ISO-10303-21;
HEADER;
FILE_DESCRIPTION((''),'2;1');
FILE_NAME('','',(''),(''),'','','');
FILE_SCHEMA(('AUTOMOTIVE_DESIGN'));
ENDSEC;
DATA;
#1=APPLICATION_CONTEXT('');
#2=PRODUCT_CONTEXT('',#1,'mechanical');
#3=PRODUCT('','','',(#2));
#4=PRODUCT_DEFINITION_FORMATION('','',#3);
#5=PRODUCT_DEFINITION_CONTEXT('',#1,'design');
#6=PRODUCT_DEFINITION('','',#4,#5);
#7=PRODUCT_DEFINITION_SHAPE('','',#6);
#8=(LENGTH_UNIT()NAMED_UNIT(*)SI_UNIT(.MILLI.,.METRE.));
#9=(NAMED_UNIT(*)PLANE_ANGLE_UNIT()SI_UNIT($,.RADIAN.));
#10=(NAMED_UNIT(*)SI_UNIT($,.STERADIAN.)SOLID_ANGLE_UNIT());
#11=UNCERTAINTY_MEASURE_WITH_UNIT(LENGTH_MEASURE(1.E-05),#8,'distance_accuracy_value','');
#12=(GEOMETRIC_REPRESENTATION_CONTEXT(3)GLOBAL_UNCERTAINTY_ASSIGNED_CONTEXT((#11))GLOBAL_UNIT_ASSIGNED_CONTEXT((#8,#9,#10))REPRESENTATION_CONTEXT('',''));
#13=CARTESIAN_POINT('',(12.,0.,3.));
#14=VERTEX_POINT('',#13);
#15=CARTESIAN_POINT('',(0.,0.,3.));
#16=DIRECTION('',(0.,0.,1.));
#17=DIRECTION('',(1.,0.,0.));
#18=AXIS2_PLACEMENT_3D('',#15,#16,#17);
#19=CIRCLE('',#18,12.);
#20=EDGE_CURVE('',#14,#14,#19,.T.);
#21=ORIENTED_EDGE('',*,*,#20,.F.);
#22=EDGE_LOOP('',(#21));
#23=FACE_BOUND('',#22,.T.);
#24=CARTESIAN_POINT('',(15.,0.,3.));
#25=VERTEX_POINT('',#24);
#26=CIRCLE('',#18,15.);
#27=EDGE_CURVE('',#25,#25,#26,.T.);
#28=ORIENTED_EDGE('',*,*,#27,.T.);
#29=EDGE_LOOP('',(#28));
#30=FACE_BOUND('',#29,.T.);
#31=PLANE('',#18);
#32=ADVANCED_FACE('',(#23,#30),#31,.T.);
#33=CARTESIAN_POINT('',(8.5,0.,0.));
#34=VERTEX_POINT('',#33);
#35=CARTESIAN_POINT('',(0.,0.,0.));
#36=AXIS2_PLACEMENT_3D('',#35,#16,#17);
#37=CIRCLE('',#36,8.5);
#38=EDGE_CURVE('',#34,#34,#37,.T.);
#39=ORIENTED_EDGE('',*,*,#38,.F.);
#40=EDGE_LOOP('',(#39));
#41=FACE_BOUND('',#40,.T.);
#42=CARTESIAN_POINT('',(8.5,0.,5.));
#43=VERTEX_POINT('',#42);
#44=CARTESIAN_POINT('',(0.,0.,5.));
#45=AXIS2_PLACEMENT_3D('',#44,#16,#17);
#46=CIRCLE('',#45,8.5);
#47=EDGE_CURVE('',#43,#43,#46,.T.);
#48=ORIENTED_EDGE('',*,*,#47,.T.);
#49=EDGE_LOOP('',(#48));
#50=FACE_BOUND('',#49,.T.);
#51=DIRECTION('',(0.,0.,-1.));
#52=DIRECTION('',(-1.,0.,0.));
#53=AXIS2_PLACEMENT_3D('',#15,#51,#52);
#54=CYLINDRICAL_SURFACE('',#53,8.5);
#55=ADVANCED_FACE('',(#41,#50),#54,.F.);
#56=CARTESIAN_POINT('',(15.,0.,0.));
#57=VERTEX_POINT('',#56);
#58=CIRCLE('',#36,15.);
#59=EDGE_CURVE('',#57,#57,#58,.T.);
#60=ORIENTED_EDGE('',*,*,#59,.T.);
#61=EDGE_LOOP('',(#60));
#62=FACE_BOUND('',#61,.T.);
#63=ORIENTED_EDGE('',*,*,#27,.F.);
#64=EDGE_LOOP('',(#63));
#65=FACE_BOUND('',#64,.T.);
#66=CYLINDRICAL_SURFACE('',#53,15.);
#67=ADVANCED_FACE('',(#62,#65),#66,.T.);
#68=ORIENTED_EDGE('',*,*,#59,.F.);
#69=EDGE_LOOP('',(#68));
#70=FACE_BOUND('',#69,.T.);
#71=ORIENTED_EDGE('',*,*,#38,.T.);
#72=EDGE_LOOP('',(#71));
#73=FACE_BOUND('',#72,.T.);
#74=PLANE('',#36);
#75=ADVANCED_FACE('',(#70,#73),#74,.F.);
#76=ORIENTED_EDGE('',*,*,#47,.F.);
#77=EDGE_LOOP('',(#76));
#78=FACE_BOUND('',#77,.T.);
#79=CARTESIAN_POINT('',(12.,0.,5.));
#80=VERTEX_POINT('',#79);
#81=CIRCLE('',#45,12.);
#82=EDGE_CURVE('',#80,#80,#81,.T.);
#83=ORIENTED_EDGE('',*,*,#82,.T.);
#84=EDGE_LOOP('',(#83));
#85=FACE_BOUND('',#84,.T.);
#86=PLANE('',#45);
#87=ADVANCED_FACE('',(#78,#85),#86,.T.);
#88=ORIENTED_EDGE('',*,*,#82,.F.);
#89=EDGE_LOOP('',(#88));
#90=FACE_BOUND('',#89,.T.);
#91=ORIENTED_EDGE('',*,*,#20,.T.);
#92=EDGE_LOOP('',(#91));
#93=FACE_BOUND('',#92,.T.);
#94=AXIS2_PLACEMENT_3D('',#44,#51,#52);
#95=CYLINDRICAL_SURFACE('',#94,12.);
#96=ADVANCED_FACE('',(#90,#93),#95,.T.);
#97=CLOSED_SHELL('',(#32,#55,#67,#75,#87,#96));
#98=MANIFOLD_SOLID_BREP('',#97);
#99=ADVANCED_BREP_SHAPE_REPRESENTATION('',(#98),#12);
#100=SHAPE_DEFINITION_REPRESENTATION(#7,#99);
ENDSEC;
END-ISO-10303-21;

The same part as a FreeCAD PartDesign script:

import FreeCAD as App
import Part
import Sketcher

V = App.Vector
Q = App.Units.Quantity

doc = App.newDocument("Part")
body = doc.addObject("PartDesign::Body", "Body")

sketch1 = doc.addObject("Sketcher::SketchObject", "Sketch")
body.addObject(sketch1)
sketch1.AttachmentSupport = (doc.XY_Plane, [""])
sketch1.MapMode = "FlatFace"
sketch1.addGeometry(Part.Circle(V(0, 0, 0), V(0, 0, 1), 15), False)
sketch1.addGeometry(Part.Circle(V(0, 0, 0), V(0, 0, 1), 8.5), False)
sketch1.addConstraint(Sketcher.Constraint("Coincident", 0, 3, -1, 1))
sketch1.addConstraint(Sketcher.Constraint("Coincident", 1, 3, -1, 1))
sketch1.addConstraint(Sketcher.Constraint("Diameter", 0, Q("30 mm")))
sketch1.addConstraint(Sketcher.Constraint("Diameter", 1, Q("17 mm")))
pad1 = doc.addObject("PartDesign::Pad", "Pad")
body.addObject(pad1)
pad1.Profile = sketch1
pad1.Length = 3

sketch2 = doc.addObject("Sketcher::SketchObject", "Sketch001")
body.addObject(sketch2)
sketch2.AttachmentSupport = (doc.XY_Plane, [""])
sketch2.MapMode = "FlatFace"
sketch2.AttachmentOffset = App.Placement(V(0, 0, 3), App.Rotation())
sketch2.addGeometry(Part.Circle(V(0, 0, 0), V(0, 0, 1), 12), False)
sketch2.addGeometry(Part.Circle(V(0, 0, 0), V(0, 0, 1), 8.5), False)
sketch2.addConstraint(Sketcher.Constraint("Coincident", 0, 3, -1, 1))
sketch2.addConstraint(Sketcher.Constraint("Coincident", 1, 3, -1, 1))
sketch2.addConstraint(Sketcher.Constraint("Diameter", 0, Q("24 mm")))
sketch2.addConstraint(Sketcher.Constraint("Diameter", 1, Q("17 mm")))
pad2 = doc.addObject("PartDesign::Pad", "Pad001")
body.addObject(pad2)
pad2.Profile = sketch2
pad2.Length = 2

doc.recompute()
